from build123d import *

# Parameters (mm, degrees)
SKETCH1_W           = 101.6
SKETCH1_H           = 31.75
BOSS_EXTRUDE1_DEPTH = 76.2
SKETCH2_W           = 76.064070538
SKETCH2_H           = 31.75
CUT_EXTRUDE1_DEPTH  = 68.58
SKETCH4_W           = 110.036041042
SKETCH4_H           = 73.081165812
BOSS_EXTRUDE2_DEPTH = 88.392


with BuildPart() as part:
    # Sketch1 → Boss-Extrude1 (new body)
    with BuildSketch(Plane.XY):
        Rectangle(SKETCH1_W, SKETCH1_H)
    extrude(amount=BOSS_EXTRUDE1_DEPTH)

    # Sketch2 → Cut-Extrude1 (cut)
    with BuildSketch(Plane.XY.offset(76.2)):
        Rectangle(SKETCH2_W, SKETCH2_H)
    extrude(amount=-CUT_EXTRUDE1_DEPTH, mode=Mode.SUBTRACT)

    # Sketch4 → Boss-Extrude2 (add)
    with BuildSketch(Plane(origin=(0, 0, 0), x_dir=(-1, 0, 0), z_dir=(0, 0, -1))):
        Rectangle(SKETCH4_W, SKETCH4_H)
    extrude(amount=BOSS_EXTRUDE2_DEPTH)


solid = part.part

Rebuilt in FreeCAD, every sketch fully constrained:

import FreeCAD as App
import Part
import Sketcher
Q = App.Units.Quantity


def add_polygon(sketch, points):
    """Adds a closed chain of lines whose ends are joined by coincident constraints."""
    first, n = sketch.GeometryCount, len(points)
    for a, b in zip(points, points[1:] + points[:1]):
        sketch.addGeometry(Part.LineSegment(App.Vector(*a, 0), App.Vector(*b, 0)), False)
    for i in range(n):
        sketch.addConstraint(Sketcher.Constraint("Coincident", first + i, 2, first + (i + 1) % n, 1))

doc = App.newDocument("Part")
body = doc.addObject("PartDesign::Body", "Body")

sketch1 = body.newObject("Sketcher::SketchObject", "Sketch")
sketch1.AttachmentSupport = (doc.getObject("XY_Plane"), [""])
sketch1.MapMode = "FlatFace"
add_polygon(sketch1, [(-50.8, 15.875), (-50.8, -15.875), (50.8, -15.875), (50.8, 15.875)])
sketch1.addConstraint([
    Sketcher.Constraint("Vertical", 0),
    Sketcher.Constraint("Horizontal", 1),
    Sketcher.Constraint("Vertical", 2),
    Sketcher.Constraint("Horizontal", 3),
    Sketcher.Constraint("Symmetric", 0, 2, 2, 2, -1, 1),
    Sketcher.Constraint("DistanceX", 1, 1, 1, 2, Q("4 in")),
    Sketcher.Constraint("DistanceY", 0, 2, 0, 1, Q("1.25 in")),
])
pad1 = body.newObject("PartDesign::Pad", "Pad")
pad1.Profile = sketch1
pad1.Length = Q("3 in")

sketch2 = body.newObject("Sketcher::SketchObject", "Sketch001")
sketch2.AttachmentSupport = (doc.getObject("XY_Plane"), [""])
sketch2.MapMode = "FlatFace"
sketch2.AttachmentOffset = App.Placement(App.Vector(0, 0, 3 * 25.4), App.Rotation())
add_polygon(sketch2, [(-38.032035, 15.875), (-38.032035, -15.875), (38.032035, -15.875), (38.032035, 15.875)])
sketch2.addConstraint([
    Sketcher.Constraint("Vertical", 0),
    Sketcher.Constraint("Horizontal", 1),
    Sketcher.Constraint("Vertical", 2),
    Sketcher.Constraint("Horizontal", 3),
    Sketcher.Constraint("Symmetric", 0, 2, 2, 2, -1, 1),
    Sketcher.Constraint("DistanceY", 0, 2, 0, 1, Q("1.25 in")),
    Sketcher.Constraint("DistanceX", 1, 1, 1, 2, 76.064071),
])
pocket1 = body.newObject("PartDesign::Pocket", "Pocket")
pocket1.Profile = sketch2
pocket1.Length = Q("2.7 in")

sketch3 = body.newObject("Sketcher::SketchObject", "Sketch002")
sketch3.AttachmentSupport = (doc.getObject("XY_Plane"), [""])
sketch3.MapMode = "FlatFace"
add_polygon(sketch3, [(55.018021, 36.540583), (55.018021, -36.540583), (-55.018021, -36.540583), (-55.018021, 36.540583)])
sketch3.addConstraint([
    Sketcher.Constraint("Vertical", 0),
    Sketcher.Constraint("Horizontal", 1),
    Sketcher.Constraint("Vertical", 2),
    Sketcher.Constraint("Horizontal", 3),
    Sketcher.Constraint("Symmetric", 0, 2, 2, 2, -1, 1),
    Sketcher.Constraint("DistanceX", 1, 2, 1, 1, 110.036041),
    Sketcher.Constraint("DistanceY", 0, 2, 0, 1, 73.081166),
])
pad2 = body.newObject("PartDesign::Pad", "Pad001")
pad2.Profile = sketch3
pad2.Length = Q("3.48 in")
pad2.Reversed = True

doc.recompute()
